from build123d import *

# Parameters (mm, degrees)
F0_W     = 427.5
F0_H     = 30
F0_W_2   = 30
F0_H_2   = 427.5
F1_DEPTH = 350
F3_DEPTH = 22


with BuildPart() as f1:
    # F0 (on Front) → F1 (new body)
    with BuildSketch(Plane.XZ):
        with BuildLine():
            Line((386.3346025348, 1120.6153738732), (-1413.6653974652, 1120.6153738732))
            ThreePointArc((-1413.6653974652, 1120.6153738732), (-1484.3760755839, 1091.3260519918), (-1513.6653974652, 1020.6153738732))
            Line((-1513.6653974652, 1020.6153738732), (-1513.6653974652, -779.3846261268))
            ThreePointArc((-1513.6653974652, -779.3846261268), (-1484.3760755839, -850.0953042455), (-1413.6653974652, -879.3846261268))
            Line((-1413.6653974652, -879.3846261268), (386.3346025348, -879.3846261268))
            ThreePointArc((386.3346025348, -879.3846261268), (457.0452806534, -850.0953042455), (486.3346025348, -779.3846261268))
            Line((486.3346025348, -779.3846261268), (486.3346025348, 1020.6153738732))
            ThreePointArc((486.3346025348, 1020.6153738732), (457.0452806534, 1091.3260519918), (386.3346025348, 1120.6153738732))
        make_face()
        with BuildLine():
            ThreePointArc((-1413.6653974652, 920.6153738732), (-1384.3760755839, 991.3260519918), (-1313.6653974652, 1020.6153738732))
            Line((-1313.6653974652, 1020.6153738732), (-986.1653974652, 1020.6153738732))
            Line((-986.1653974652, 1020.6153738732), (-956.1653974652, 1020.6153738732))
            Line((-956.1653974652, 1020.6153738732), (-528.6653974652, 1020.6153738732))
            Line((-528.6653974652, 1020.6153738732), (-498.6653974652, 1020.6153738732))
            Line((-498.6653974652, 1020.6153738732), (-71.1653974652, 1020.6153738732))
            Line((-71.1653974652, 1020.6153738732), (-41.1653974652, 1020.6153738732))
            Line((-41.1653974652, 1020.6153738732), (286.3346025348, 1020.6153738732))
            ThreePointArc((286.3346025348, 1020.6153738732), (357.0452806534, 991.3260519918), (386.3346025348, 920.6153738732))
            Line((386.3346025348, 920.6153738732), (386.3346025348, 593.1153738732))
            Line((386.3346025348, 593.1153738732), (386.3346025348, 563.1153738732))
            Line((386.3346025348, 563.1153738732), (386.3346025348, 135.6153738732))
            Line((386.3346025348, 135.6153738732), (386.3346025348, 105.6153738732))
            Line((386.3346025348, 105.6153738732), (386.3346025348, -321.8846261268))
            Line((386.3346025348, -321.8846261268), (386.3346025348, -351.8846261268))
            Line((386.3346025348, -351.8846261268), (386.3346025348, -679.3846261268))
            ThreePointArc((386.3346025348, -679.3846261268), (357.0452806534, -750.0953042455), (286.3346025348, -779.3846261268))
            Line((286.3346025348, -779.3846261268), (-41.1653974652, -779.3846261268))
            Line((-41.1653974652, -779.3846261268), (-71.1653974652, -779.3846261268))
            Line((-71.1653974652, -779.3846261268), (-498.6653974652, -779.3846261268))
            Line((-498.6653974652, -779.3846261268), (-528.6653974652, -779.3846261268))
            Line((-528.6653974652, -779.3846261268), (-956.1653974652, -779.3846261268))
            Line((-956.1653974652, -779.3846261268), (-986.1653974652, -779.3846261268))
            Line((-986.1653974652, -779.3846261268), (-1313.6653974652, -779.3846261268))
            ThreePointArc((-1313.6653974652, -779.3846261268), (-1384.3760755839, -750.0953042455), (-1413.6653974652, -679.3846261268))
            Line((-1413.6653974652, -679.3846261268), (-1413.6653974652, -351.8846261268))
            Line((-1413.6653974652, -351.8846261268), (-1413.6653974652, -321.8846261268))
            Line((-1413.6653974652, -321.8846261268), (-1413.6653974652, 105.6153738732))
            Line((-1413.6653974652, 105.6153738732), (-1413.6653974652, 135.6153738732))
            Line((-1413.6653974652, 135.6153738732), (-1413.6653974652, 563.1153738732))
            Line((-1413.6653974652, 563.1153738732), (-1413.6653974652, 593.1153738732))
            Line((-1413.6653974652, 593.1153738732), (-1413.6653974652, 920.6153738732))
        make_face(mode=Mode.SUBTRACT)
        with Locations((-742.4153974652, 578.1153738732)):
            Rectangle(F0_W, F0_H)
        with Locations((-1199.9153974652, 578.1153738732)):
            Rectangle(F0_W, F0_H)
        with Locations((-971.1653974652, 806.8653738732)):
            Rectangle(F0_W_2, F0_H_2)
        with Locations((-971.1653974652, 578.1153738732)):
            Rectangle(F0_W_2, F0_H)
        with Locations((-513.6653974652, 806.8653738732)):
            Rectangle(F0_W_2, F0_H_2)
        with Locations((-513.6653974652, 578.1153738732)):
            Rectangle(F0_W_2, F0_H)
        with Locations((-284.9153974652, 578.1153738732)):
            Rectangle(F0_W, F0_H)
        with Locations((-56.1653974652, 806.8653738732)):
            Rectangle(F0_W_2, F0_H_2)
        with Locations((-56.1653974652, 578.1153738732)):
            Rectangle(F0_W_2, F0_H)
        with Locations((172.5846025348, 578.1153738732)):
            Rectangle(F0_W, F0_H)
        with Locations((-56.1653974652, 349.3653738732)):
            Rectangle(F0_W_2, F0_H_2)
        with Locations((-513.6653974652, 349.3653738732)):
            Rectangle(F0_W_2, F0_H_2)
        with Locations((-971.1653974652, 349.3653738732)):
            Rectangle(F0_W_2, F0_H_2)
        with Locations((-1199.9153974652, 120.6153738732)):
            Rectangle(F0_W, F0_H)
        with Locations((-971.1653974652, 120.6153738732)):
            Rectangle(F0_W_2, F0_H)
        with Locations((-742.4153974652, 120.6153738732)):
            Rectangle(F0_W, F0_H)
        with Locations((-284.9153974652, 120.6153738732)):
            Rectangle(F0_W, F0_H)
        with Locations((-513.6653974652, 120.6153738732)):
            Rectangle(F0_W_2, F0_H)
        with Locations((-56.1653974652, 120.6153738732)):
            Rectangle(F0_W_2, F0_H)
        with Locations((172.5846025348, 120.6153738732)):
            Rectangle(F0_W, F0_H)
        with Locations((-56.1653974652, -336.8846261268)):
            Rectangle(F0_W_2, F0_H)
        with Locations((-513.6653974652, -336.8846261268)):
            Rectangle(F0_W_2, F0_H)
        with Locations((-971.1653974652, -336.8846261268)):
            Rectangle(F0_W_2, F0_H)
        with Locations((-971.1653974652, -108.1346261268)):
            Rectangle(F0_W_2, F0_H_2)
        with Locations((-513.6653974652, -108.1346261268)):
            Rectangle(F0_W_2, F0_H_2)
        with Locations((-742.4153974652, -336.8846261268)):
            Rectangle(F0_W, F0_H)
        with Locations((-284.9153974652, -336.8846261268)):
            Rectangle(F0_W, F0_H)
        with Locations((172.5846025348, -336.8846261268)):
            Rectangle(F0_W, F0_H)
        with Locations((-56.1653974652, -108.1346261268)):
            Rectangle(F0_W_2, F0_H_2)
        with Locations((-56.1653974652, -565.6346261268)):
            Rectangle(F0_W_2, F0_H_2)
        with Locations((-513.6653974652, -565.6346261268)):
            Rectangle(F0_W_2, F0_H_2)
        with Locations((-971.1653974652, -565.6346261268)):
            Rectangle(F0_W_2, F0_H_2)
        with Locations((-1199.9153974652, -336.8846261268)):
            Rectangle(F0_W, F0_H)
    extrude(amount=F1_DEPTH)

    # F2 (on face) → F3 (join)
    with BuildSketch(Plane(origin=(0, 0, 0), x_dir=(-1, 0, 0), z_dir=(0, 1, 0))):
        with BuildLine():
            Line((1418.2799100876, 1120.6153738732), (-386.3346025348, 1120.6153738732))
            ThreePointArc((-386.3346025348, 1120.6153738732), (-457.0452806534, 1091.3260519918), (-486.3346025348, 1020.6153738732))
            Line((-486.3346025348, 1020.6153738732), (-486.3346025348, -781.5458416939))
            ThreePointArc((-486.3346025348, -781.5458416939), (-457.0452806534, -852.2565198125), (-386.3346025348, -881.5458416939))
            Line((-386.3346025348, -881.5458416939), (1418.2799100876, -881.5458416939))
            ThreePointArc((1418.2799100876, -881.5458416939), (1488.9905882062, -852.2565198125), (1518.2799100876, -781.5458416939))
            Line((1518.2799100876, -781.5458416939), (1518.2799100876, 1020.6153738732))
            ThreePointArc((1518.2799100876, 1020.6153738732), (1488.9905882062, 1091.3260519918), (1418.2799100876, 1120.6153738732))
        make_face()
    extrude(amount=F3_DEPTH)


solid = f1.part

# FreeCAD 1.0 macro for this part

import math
import FreeCAD as App
import Part
import Sketcher

doc = App.newDocument("Part")
body = doc.addObject("PartDesign::Body", "Body")

# Sketch on XZ plane
sketch1 = body.newObject("Sketcher::SketchObject", "Sketch")
sketch1.AttachmentSupport = (doc.getObject("XZ_Plane"), [""])
sketch1.MapMode = "FlatFace"
sketch1.addGeometry([
    Part.LineSegment(App.Vector(386, 1121, 0), App.Vector(-1414, 1121, 0)),  # 0
    Part.ArcOfCircle(Part.Circle(App.Vector(-1414, 1021, 0), App.Vector(0, 0, 1), 100), math.radians(90), math.radians(180)),  # 1
    Part.LineSegment(App.Vector(-1514, 1021, 0), App.Vector(-1514, -779, 0)),  # 2
    Part.ArcOfCircle(Part.Circle(App.Vector(-1414, -779, 0), App.Vector(0, 0, 1), 100), math.radians(180), math.radians(270)),  # 3
    Part.LineSegment(App.Vector(-1414, -879, 0), App.Vector(386, -879, 0)),  # 4
    Part.ArcOfCircle(Part.Circle(App.Vector(386, -779, 0), App.Vector(0, 0, 1), 100), math.radians(-90), math.radians(0)),  # 5
    Part.LineSegment(App.Vector(486, -779, 0), App.Vector(486, 1021, 0)),  # 6
    Part.ArcOfCircle(Part.Circle(App.Vector(386, 1021, 0), App.Vector(0, 0, 1), 100), math.radians(0), math.radians(90)),  # 7
    Part.LineSegment(App.Vector(-1414, 106, 0), App.Vector(-986, 106, 0)),  # 8
    Part.LineSegment(App.Vector(-986, 106, 0), App.Vector(-986, -322, 0)),  # 9
    Part.LineSegment(App.Vector(-986, -322, 0), App.Vector(-1414, -322, 0)),  # 10
    Part.LineSegment(App.Vector(-1414, -322, 0), App.Vector(-1414, 106, 0)),  # 11
    Part.LineSegment(App.Vector(-986, -352, 0), App.Vector(-986, -779, 0)),  # 12
    Part.LineSegment(App.Vector(-986, -779, 0), App.Vector(-1314, -779, 0)),  # 13
    Part.ArcOfCircle(Part.Circle(App.Vector(-1314, -679, 0), App.Vector(0, 0, 1), 100), math.radians(180), math.radians(270)),  # 14
    Part.LineSegment(App.Vector(-1414, -679, 0), App.Vector(-1414, -352, 0)),  # 15
    Part.LineSegment(App.Vector(-1414, -352, 0), App.Vector(-986, -352, 0)),  # 16
    Part.LineSegment(App.Vector(-956, -352, 0), App.Vector(-529, -352, 0)),  # 17
    Part.LineSegment(App.Vector(-529, -352, 0), App.Vector(-529, -779, 0)),  # 18
    Part.LineSegment(App.Vector(-529, -779, 0), App.Vector(-956, -779, 0)),  # 19
    Part.LineSegment(App.Vector(-956, -779, 0), App.Vector(-956, -352, 0)),  # 20
    Part.LineSegment(App.Vector(-499, -352, 0), App.Vector(-71, -352, 0)),  # 21
    Part.LineSegment(App.Vector(-71, -352, 0), App.Vector(-71, -779, 0)),  # 22
    Part.LineSegment(App.Vector(-71, -779, 0), App.Vector(-499, -779, 0)),  # 23
    Part.LineSegment(App.Vector(-499, -779, 0), App.Vector(-499, -352, 0)),  # 24
    Part.LineSegment(App.Vector(-41, -352, 0), App.Vector(386, -352, 0)),  # 25
    Part.LineSegment(App.Vector(386, -352, 0), App.Vector(386, -679, 0)),  # 26
    Part.ArcOfCircle(Part.Circle(App.Vector(286, -679, 0), App.Vector(0, 0, 1), 100), math.radians(-90), math.radians(0)),  # 27
    Part.LineSegment(App.Vector(286, -779, 0), App.Vector(-41, -779, 0)),  # 28
    Part.LineSegment(App.Vector(-41, -779, 0), App.Vector(-41, -352, 0)),  # 29
    Part.LineSegment(App.Vector(-499, -322, 0), App.Vector(-499, 106, 0)),  # 30
    Part.LineSegment(App.Vector(-499, 106, 0), App.Vector(-71, 106, 0)),  # 31
    Part.LineSegment(App.Vector(-71, 106, 0), App.Vector(-71, -322, 0)),  # 32
    Part.LineSegment(App.Vector(-71, -322, 0), App.Vector(-499, -322, 0)),  # 33
    Part.LineSegment(App.Vector(-41, 106, 0), App.Vector(386, 106, 0)),  # 34
    Part.LineSegment(App.Vector(386, 106, 0), App.Vector(386, -322, 0)),  # 35
    Part.LineSegment(App.Vector(386, -322, 0), App.Vector(-41, -322, 0)),  # 36
    Part.LineSegment(App.Vector(-41, -322, 0), App.Vector(-41, 106, 0)),  # 37
    Part.LineSegment(App.Vector(-956, -322, 0), App.Vector(-956, 106, 0)),  # 38
    Part.LineSegment(App.Vector(-956, 106, 0), App.Vector(-529, 106, 0)),  # 39
    Part.LineSegment(App.Vector(-529, 106, 0), App.Vector(-529, -322, 0)),  # 40
    Part.LineSegment(App.Vector(-529, -322, 0), App.Vector(-956, -322, 0)),  # 41
    Part.LineSegment(App.Vector(-41, 136, 0), App.Vector(-41, 563, 0)),  # 42
    Part.LineSegment(App.Vector(-41, 563, 0), App.Vector(386, 563, 0)),  # 43
    Part.LineSegment(App.Vector(386, 563, 0), App.Vector(386, 136, 0)),  # 44
    Part.LineSegment(App.Vector(386, 136, 0), App.Vector(-41, 136, 0)),  # 45
    Part.LineSegment(App.Vector(-986, 563, 0), App.Vector(-986, 136, 0)),  # 46
    Part.LineSegment(App.Vector(-986, 136, 0), App.Vector(-1414, 136, 0)),  # 47
    Part.LineSegment(App.Vector(-1414, 136, 0), App.Vector(-1414, 563, 0)),  # 48
    Part.LineSegment(App.Vector(-1414, 563, 0), App.Vector(-986, 563, 0)),  # 49
    Part.LineSegment(App.Vector(-529, 563, 0), App.Vector(-529, 136, 0)),  # 50
    Part.LineSegment(App.Vector(-529, 136, 0), App.Vector(-956, 136, 0)),  # 51
    Part.LineSegment(App.Vector(-956, 136, 0), App.Vector(-956, 563, 0)),  # 52
    Part.LineSegment(App.Vector(-956, 563, 0), App.Vector(-529, 563, 0)),  # 53
    Part.LineSegment(App.Vector(-986, 593, 0), App.Vector(-1414, 593, 0)),  # 54
    Part.LineSegment(App.Vector(-1414, 593, 0), App.Vector(-1414, 921, 0)),  # 55
    Part.ArcOfCircle(Part.Circle(App.Vector(-1314, 921, 0), App.Vector(0, 0, 1), 100), math.radians(90), math.radians(180)),  # 56
    Part.LineSegment(App.Vector(-1314, 1021, 0), App.Vector(-986, 1021, 0)),  # 57
    Part.LineSegment(App.Vector(-986, 1021, 0), App.Vector(-986, 593, 0)),  # 58
    Part.LineSegment(App.Vector(-529, 593, 0), App.Vector(-956, 593, 0)),  # 59
    Part.LineSegment(App.Vector(-956, 593, 0), App.Vector(-956, 1021, 0)),  # 60
    Part.LineSegment(App.Vector(-956, 1021, 0), App.Vector(-529, 1021, 0)),  # 61
    Part.LineSegment(App.Vector(-529, 1021, 0), App.Vector(-529, 593, 0)),  # 62
    Part.LineSegment(App.Vector(-71, 136, 0), App.Vector(-499, 136, 0)),  # 63
    Part.LineSegment(App.Vector(-499, 136, 0), App.Vector(-499, 563, 0)),  # 64
    Part.LineSegment(App.Vector(-499, 563, 0), App.Vector(-71, 563, 0)),  # 65
    Part.LineSegment(App.Vector(-71, 563, 0), App.Vector(-71, 136, 0)),  # 66
    Part.LineSegment(App.Vector(-71, 593, 0), App.Vector(-499, 593, 0)),  # 67
    Part.LineSegment(App.Vector(-499, 593, 0), App.Vector(-499, 1021, 0)),  # 68
    Part.LineSegment(App.Vector(-499, 1021, 0), App.Vector(-71, 1021, 0)),  # 69
    Part.LineSegment(App.Vector(-71, 1021, 0), App.Vector(-71, 593, 0)),  # 70
    Part.LineSegment(App.Vector(-41, 593, 0), App.Vector(-41, 1021, 0)),  # 71
    Part.LineSegment(App.Vector(-41, 1021, 0), App.Vector(286, 1021, 0)),  # 72
    Part.ArcOfCircle(Part.Circle(App.Vector(286, 921, 0), App.Vector(0, 0, 1), 100), math.radians(0), math.radians(90)),  # 73
    Part.LineSegment(App.Vector(386, 921, 0), App.Vector(386, 593, 0)),  # 74
    Part.LineSegment(App.Vector(386, 593, 0), App.Vector(-41, 593, 0)),  # 75
], False)
sketch1.addConstraint([
    Sketcher.Constraint("Tangent", 0, 2, 1, 1),
    Sketcher.Constraint("Tangent", 1, 2, 2, 1),
    Sketcher.Constraint("Tangent", 2, 2, 3, 1),
    Sketcher.Constraint("Tangent", 3, 2, 4, 1),
    Sketcher.Constraint("Tangent", 4, 2, 5, 1),
    Sketcher.Constraint("Tangent", 5, 2, 6, 1),
    Sketcher.Constraint("Tangent", 6, 2, 7, 1),
    Sketcher.Constraint("Tangent", 7, 2, 0, 1),
    Sketcher.Constraint("Coincident", 8, 2, 9, 1),
    Sketcher.Constraint("Coincident", 9, 2, 10, 1),
    Sketcher.Constraint("Coincident", 10, 2, 11, 1),
    Sketcher.Constraint("Coincident", 11, 2, 8, 1),
    Sketcher.Constraint("Coincident", 12, 2, 13, 1),
    Sketcher.Constraint("Tangent", 13, 2, 14, 2),
    Sketcher.Constraint("Tangent", 14, 1, 15, 1),
    Sketcher.Constraint("Coincident", 15, 2, 16, 1),
    Sketcher.Constraint("Coincident", 16, 2, 12, 1),
    Sketcher.Constraint("Coincident", 17, 2, 18, 1),
    Sketcher.Constraint("Coincident", 18, 2, 19, 1),
    Sketcher.Constraint("Coincident", 19, 2, 20, 1),
    Sketcher.Constraint("Coincident", 20, 2, 17, 1),
    Sketcher.Constraint("Coincident", 21, 2, 22, 1),
    Sketcher.Constraint("Coincident", 22, 2, 23, 1),
    Sketcher.Constraint("Coincident", 23, 2, 24, 1),
    Sketcher.Constraint("Coincident", 24, 2, 21, 1),
    Sketcher.Constraint("Coincident", 25, 2, 26, 1),
    Sketcher.Constraint("Tangent", 26, 2, 27, 2),
    Sketcher.Constraint("Tangent", 27, 1, 28, 1),
    Sketcher.Constraint("Coincident", 28, 2, 29, 1),
    Sketcher.Constraint("Coincident", 29, 2, 25, 1),
    Sketcher.Constraint("Coincident", 30, 2, 31, 1),
    Sketcher.Constraint("Coincident", 31, 2, 32, 1),
    Sketcher.Constraint("Coincident", 32, 2, 33, 1),
    Sketcher.Constraint("Coincident", 33, 2, 30, 1),
    Sketcher.Constraint("Coincident", 34, 2, 35, 1),
    Sketcher.Constraint("Coincident", 35, 2, 36, 1),
    Sketcher.Constraint("Coincident", 36, 2, 37, 1),
    Sketcher.Constraint("Coincident", 37, 2, 34, 1),
    Sketcher.Constraint("Coincident", 38, 2, 39, 1),
    Sketcher.Constraint("Coincident", 39, 2, 40, 1),
    Sketcher.Constraint("Coincident", 40, 2, 41, 1),
    Sketcher.Constraint("Coincident", 41, 2, 38, 1),
    Sketcher.Constraint("Coincident", 42, 2, 43, 1),
    Sketcher.Constraint("Coincident", 43, 2, 44, 1),
    Sketcher.Constraint("Coincident", 44, 2, 45, 1),
    Sketcher.Constraint("Coincident", 45, 2, 42, 1),
    Sketcher.Constraint("Coincident", 46, 2, 47, 1),
    Sketcher.Constraint("Coincident", 47, 2, 48, 1),
    Sketcher.Constraint("Coincident", 48, 2, 49, 1),
    Sketcher.Constraint("Coincident", 49, 2, 46, 1),
    Sketcher.Constraint("Coincident", 50, 2, 51, 1),
    Sketcher.Constraint("Coincident", 51, 2, 52, 1),
    Sketcher.Constraint("Coincident", 52, 2, 53, 1),
    Sketcher.Constraint("Coincident", 53, 2, 50, 1),
    Sketcher.Constraint("Coincident", 54, 2, 55, 1),
    Sketcher.Constraint("Tangent", 55, 2, 56, 2),
    Sketcher.Constraint("Tangent", 56, 1, 57, 1),
    Sketcher.Constraint("Coincident", 57, 2, 58, 1),
    Sketcher.Constraint("Coincident", 58, 2, 54, 1),
    Sketcher.Constraint("Coincident", 59, 2, 60, 1),
    Sketcher.Constraint("Coincident", 60, 2, 61, 1),
    Sketcher.Constraint("Coincident", 61, 2, 62, 1),
    Sketcher.Constraint("Coincident", 62, 2, 59, 1),
    Sketcher.Constraint("Coincident", 63, 2, 64, 1),
    Sketcher.Constraint("Coincident", 64, 2, 65, 1),
    Sketcher.Constraint("Coincident", 65, 2, 66, 1),
    Sketcher.Constraint("Coincident", 66, 2, 63, 1),
    Sketcher.Constraint("Coincident", 67, 2, 68, 1),
    Sketcher.Constraint("Coincident", 68, 2, 69, 1),
    Sketcher.Constraint("Coincident", 69, 2, 70, 1),
    Sketcher.Constraint("Coincident", 70, 2, 67, 1),
    Sketcher.Constraint("Coincident", 71, 2, 72, 1),
    Sketcher.Constraint("Tangent", 72, 2, 73, 2),
    Sketcher.Constraint("Tangent", 73, 1, 74, 1),
    Sketcher.Constraint("Coincident", 74, 2, 75, 1),
    Sketcher.Constraint("Coincident", 75, 2, 71, 1),
    Sketcher.Constraint("Horizontal", 0),
    Sketcher.Constraint("Vertical", 2),
    Sketcher.Constraint("Horizontal", 4),
    Sketcher.Constraint("Vertical", 6),
    Sketcher.Constraint("Horizontal", 8),
    Sketcher.Constraint("Vertical", 9),
    Sketcher.Constraint("Horizontal", 10),
    Sketcher.Constraint("Vertical", 11),
    Sketcher.Constraint("Vertical", 12),
    Sketcher.Constraint("Horizontal", 13),
    Sketcher.Constraint("Vertical", 15),
    Sketcher.Constraint("Horizontal", 16),
    Sketcher.Constraint("Horizontal", 17),
    Sketcher.Constraint("Vertical", 18),
    Sketcher.Constraint("Horizontal", 19),
    Sketcher.Constraint("Vertical", 20),
    Sketcher.Constraint("Horizontal", 21),
    Sketcher.Constraint("Vertical", 22),
    Sketcher.Constraint("Horizontal", 23),
    Sketcher.Constraint("Vertical", 24),
    Sketcher.Constraint("Horizontal", 25),
    Sketcher.Constraint("Vertical", 26),
    Sketcher.Constraint("Horizontal", 28),
    Sketcher.Constraint("Vertical", 29),
    Sketcher.Constraint("Vertical", 30),
    Sketcher.Constraint("Horizontal", 31),
    Sketcher.Constraint("Vertical", 32),
    Sketcher.Constraint("Horizontal", 33),
    Sketcher.Constraint("Horizontal", 34),
    Sketcher.Constraint("Vertical", 35),
    Sketcher.Constraint("Horizontal", 36),
    Sketcher.Constraint("Vertical", 37),
    Sketcher.Constraint("Vertical", 38),
    Sketcher.Constraint("Horizontal", 39),
    Sketcher.Constraint("Vertical", 40),
    Sketcher.Constraint("Horizontal", 41),
    Sketcher.Constraint("Vertical", 42),
    Sketcher.Constraint("Horizontal", 43),
    Sketcher.Constraint("Vertical", 44),
    Sketcher.Constraint("Horizontal", 45),
    Sketcher.Constraint("Vertical", 46),
    Sketcher.Constraint("Horizontal", 47),
    Sketcher.Constraint("Vertical", 48),
    Sketcher.Constraint("Horizontal", 49),
    Sketcher.Constraint("Vertical", 50),
    Sketcher.Constraint("Horizontal", 51),
    Sketcher.Constraint("Vertical", 52),
    Sketcher.Constraint("Horizontal", 53),
    Sketcher.Constraint("Horizontal", 54),
    Sketcher.Constraint("Vertical", 55),
    Sketcher.Constraint("Horizontal", 57),
    Sketcher.Constraint("Vertical", 58),
    Sketcher.Constraint("Horizontal", 59),
    Sketcher.Constraint("Vertical", 60),
    Sketcher.Constraint("Horizontal", 61),
    Sketcher.Constraint("Vertical", 62),
    Sketcher.Constraint("Horizontal", 63),
    Sketcher.Constraint("Vertical", 64),
    Sketcher.Constraint("Horizontal", 65),
    Sketcher.Constraint("Vertical", 66),
    Sketcher.Constraint("Horizontal", 67),
    Sketcher.Constraint("Vertical", 68),
    Sketcher.Constraint("Horizontal", 69),
    Sketcher.Constraint("Vertical", 70),
    Sketcher.Constraint("Vertical", 71),
    Sketcher.Constraint("Horizontal", 72),
    Sketcher.Constraint("Vertical", 74),
    Sketcher.Constraint("Horizontal", 75),
    Sketcher.Constraint("Equal", 1, 3),
    Sketcher.Constraint("Equal", 3, 5),
    Sketcher.Constraint("Equal", 5, 7),
    Sketcher.Constraint("Equal", 7, 14),
    Sketcher.Constraint("Equal", 14, 27),
    Sketcher.Constraint("Equal", 27, 56),
    Sketcher.Constraint("Equal", 56, 73),
    Sketcher.Constraint("Horizontal", 14, 3, 27, 3),
    Sketcher.Constraint("Horizontal", 56, 3, 73, 3),
    Sketcher.Constraint("Horizontal", 5, 2, 12, 2),
    Sketcher.Constraint("Horizontal", 16, 2, 17, 2),
    Sketcher.Constraint("Horizontal", 13, 2, 18, 2),
    Sketcher.Constraint("Horizontal", 20, 2, 21, 2),
    Sketcher.Constraint("Horizontal", 19, 2, 22, 2),
    Sketcher.Constraint("Horizontal", 24, 2, 25, 2),
    Sketcher.Constraint("Horizontal", 11, 2, 30, 2),
    Sketcher.Constraint("Horizontal", 10, 2, 32, 2),
    Sketcher.Constraint("Horizontal", 31, 2, 34, 2),
    Sketcher.Constraint("Horizontal", 33, 2, 35, 2),
    Sketcher.Constraint("Horizontal", 37, 2, 38, 2),
    Sketcher.Constraint("Horizontal", 36, 2, 40, 2),
    Sketcher.Constraint("Horizontal", 45, 2, 46, 2),
    Sketcher.Constraint("Horizontal", 43, 2, 48, 2),
    Sketcher.Constraint("Horizontal", 47, 2, 50, 2),
    Sketcher.Constraint("Horizontal", 49, 2, 52, 2),
    Sketcher.Constraint("Horizontal", 6, 2, 56, 1),
    Sketcher.Constraint("Horizontal", 58, 2, 59, 2),
    Sketcher.Constraint("Horizontal", 57, 2, 60, 2),
    Sketcher.Constraint("Horizontal", 51, 2, 63, 2),
    Sketcher.Constraint("Horizontal", 53, 2, 64, 2),
    Sketcher.Constraint("Horizontal", 62, 2, 67, 2),
    Sketcher.Constraint("Horizontal", 61, 2, 68, 2),
    Sketcher.Constraint("Horizontal", 70, 2, 74, 2),
    Sketcher.Constraint("Vertical", 14, 3, 56, 3),
    Sketcher.Constraint("Vertical", 27, 3, 73, 3),
    Sketcher.Constraint("Vertical", 3, 2, 10, 2),
    Sketcher.Constraint("Vertical", 9, 2, 12, 2),
    Sketcher.Constraint("Vertical", 11, 2, 14, 1),
    Sketcher.Constraint("Vertical", 7, 2, 25, 2),
    Sketcher.Constraint("Vertical", 24, 2, 30, 2),
    Sketcher.Constraint("Vertical", 22, 2, 31, 2),
    Sketcher.Constraint("Vertical", 26, 2, 34, 2),
    Sketcher.Constraint("Vertical", 29, 2, 36, 2),
    Sketcher.Constraint("Vertical", 20, 2, 38, 2),
    Sketcher.Constraint("Vertical", 18, 2, 39, 2),
    Sketcher.Constraint("Vertical", 37, 2, 42, 2),
    Sketcher.Constraint("Vertical", 35, 2, 43, 2),
    Sketcher.Constraint("Vertical", 16, 2, 46, 2),
    Sketcher.Constraint("Vertical", 15, 2, 47, 2),
    Sketcher.Constraint("Vertical", 40, 2, 50, 2),
    Sketcher.Constraint("Vertical", 41, 2, 51, 2),
    Sketcher.Constraint("Vertical", 49, 2, 57, 2),
    Sketcher.Constraint("Vertical", 52, 2, 59, 2),
    Sketcher.Constraint("Vertical", 53, 2, 61, 2),
    Sketcher.Constraint("Vertical", 33, 2, 63, 2),
    Sketcher.Constraint("Vertical", 32, 2, 65, 2),
    Sketcher.Constraint("Vertical", 64, 2, 67, 2),
    Sketcher.Constraint("Vertical", 66, 2, 69, 2),
    Sketcher.Constraint("Vertical", 45, 2, 71, 2),
    Sketcher.Constraint("Equal", 16, 17),
    Sketcher.Constraint("Equal", 19, 21),
    Sketcher.Constraint("Equal", 23, 25),
    Sketcher.Constraint("Equal", 4, 2),
    Sketcher.Constraint("Equal", 75, 9),
    Sketcher.Constraint("Equal", 11, 12),
    Sketcher.Constraint("Equal", 40, 42),
    Sketcher.Constraint("Equal", 26, 55),
    Sketcher.Constraint("Radius", 1, 100.0),
    Sketcher.Constraint("DistanceX", 0, 2, 0, 1, 1800.0),
    Sketcher.Constraint("DistanceX", 8, 1, 8, 2, 427.5),
    Sketcher.Constraint("DistanceX", 1, 3, -1, 1, 1413.665397),
    Sketcher.Constraint("DistanceY", -1, 1, 1, 3, 1020.615374),
    Sketcher.Constraint("DistanceY", -1, 1, 8, 2, 105.615374),
    Sketcher.Constraint("DistanceX", 17, 2, -1, 1, 528.665397),
    Sketcher.Constraint("DistanceX", 21, 2, -1, 1, 71.165397),
    Sketcher.Constraint("DistanceY", -1, 1, 42, 2, 563.115374),
])
pad1 = body.newObject("PartDesign::Pad", "Pad")
pad1.Profile = sketch1
pad1.Length = 350

# Sketch on XZ plane
sketch2 = body.newObject("Sketcher::SketchObject", "Sketch001")
sketch2.AttachmentSupport = (doc.getObject("XZ_Plane"), [""])
sketch2.MapMode = "FlatFace"
sketch2.addGeometry([
    Part.LineSegment(App.Vector(-1418, 1121, 0), App.Vector(386, 1121, 0)),  # 0
    Part.ArcOfCircle(Part.Circle(App.Vector(386, 1021, 0), App.Vector(0, 0, 1), 100), math.radians(0), math.radians(90)),  # 1
    Part.LineSegment(App.Vector(486, 1021, 0), App.Vector(486, -782, 0)),  # 2
    Part.ArcOfCircle(Part.Circle(App.Vector(386, -782, 0), App.Vector(0, 0, 1), 100), math.radians(-90), math.radians(0)),  # 3
    Part.LineSegment(App.Vector(386, -882, 0), App.Vector(-1418, -882, 0)),  # 4
    Part.ArcOfCircle(Part.Circle(App.Vector(-1418, -782, 0), App.Vector(0, 0, 1), 100), math.radians(180), math.radians(270)),  # 5
    Part.LineSegment(App.Vector(-1518, -782, 0), App.Vector(-1518, 1021, 0)),  # 6
    Part.ArcOfCircle(Part.Circle(App.Vector(-1418, 1021, 0), App.Vector(0, 0, 1), 100), math.radians(90), math.radians(180)),  # 7
], False)
sketch2.addConstraint([
    Sketcher.Constraint("Tangent", 0, 2, 1, 2),
    Sketcher.Constraint("Tangent", 1, 1, 2, 1),
    Sketcher.Constraint("Tangent", 2, 2, 3, 2),
    Sketcher.Constraint("Tangent", 3, 1, 4, 1),
    Sketcher.Constraint("Tangent", 4, 2, 5, 2),
    Sketcher.Constraint("Tangent", 5, 1, 6, 1),
    Sketcher.Constraint("Tangent", 6, 2, 7, 2),
    Sketcher.Constraint("Tangent", 7, 1, 0, 1),
    Sketcher.Constraint("Horizontal", 0),
    Sketcher.Constraint("Vertical", 2),
    Sketcher.Constraint("Horizontal", 4),
    Sketcher.Constraint("Vertical", 6),
    Sketcher.Constraint("Equal", 1, 3),
    Sketcher.Constraint("Equal", 3, 5),
    Sketcher.Constraint("Equal", 5, 7),
    Sketcher.Constraint("Radius", 1, 100.0),
    Sketcher.Constraint("DistanceX", 0, 1, 0, 2, 1804.614513),
    Sketcher.Constraint("DistanceY", 2, 2, 2, 1, 1802.161216),
    Sketcher.Constraint("DistanceY", 3, 3, -1, 1, 781.545842),
    Sketcher.Constraint("DistanceX", 5, 3, -1, 1, 1418.27991),
])
pad2 = body.newObject("PartDesign::Pad", "Pad001")
pad2.Profile = sketch2
pad2.Length = 22
pad2.Reversed = True

doc.recompute()
